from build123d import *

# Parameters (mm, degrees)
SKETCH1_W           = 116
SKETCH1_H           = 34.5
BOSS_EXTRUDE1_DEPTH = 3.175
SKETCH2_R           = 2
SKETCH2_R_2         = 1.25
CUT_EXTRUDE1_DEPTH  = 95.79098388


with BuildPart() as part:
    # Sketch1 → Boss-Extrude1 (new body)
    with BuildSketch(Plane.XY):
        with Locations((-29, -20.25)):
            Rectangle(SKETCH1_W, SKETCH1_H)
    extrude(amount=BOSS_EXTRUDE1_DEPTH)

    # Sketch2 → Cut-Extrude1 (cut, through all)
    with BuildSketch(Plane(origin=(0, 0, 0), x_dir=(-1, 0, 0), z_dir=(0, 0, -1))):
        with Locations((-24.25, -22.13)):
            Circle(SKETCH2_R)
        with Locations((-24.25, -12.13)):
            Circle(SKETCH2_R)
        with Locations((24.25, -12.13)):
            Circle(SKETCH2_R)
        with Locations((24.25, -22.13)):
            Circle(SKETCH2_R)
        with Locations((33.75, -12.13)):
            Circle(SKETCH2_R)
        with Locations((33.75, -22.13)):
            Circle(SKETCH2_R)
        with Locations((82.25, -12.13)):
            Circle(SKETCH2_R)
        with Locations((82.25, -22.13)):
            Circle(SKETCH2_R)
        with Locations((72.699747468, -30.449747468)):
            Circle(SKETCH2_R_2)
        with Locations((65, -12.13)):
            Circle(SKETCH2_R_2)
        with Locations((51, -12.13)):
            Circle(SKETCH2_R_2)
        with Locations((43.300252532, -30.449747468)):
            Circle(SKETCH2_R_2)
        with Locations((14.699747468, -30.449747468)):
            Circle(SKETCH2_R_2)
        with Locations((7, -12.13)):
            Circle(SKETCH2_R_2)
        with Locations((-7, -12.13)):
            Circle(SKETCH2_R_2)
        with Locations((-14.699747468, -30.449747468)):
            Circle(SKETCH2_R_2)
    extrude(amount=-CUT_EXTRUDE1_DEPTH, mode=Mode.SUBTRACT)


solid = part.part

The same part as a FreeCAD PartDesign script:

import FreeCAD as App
import Part
import Sketcher
Q = App.Units.Quantity

doc = App.newDocument("Part")
body = doc.addObject("PartDesign::Body", "Body")

sketch1 = body.newObject("Sketcher::SketchObject", "Sketch")
sketch1.AttachmentSupport = (doc.getObject("XY_Plane"), [""])
sketch1.MapMode = "FlatFace"
sketch1.addGeometry([
    Part.LineSegment(App.Vector(-87, -3, 0), App.Vector(-87, -37.5, 0)),
    Part.LineSegment(App.Vector(-87, -37.5, 0), App.Vector(29, -37.5, 0)),
    Part.LineSegment(App.Vector(29, -37.5, 0), App.Vector(29, -3, 0)),
    Part.LineSegment(App.Vector(29, -3, 0), App.Vector(-87, -3, 0)),
], False)
sketch1.addConstraint([
    Sketcher.Constraint("Coincident", 0, 2, 1, 1),
    Sketcher.Constraint("Coincident", 1, 2, 2, 1),
    Sketcher.Constraint("Coincident", 2, 2, 3, 1),
    Sketcher.Constraint("Coincident", 3, 2, 0, 1),
    Sketcher.Constraint("Vertical", 0),
    Sketcher.Constraint("Horizontal", 1),
    Sketcher.Constraint("Vertical", 2),
    Sketcher.Constraint("Horizontal", 3),
    Sketcher.Constraint("DistanceX", 1, 1, 1, 2, Q("116 mm")),
    Sketcher.Constraint("DistanceY", 0, 2, 0, 1, Q("34.5 mm")),
    Sketcher.Constraint("DistanceX", 0, 2, -1, 1, Q("87 mm")),
    Sketcher.Constraint("DistanceY", 2, 2, -1, 1, Q("3 mm")),
])
pad1 = body.newObject("PartDesign::Pad", "Pad")
pad1.Profile = sketch1
pad1.Length = 3.175

sketch2 = body.newObject("Sketcher::SketchObject", "Sketch001")
sketch2.AttachmentSupport = (doc.getObject("XY_Plane"), [""])
sketch2.MapMode = "FlatFace"
sketch2.addGeometry([
    Part.Circle(App.Vector(24.25, -22.13, 0), App.Vector(0, 0, 1), 2),
    Part.Circle(App.Vector(24.25, -12.13, 0), App.Vector(0, 0, 1), 2),
    Part.Circle(App.Vector(-24.25, -12.13, 0), App.Vector(0, 0, 1), 2),
    Part.Circle(App.Vector(-24.25, -22.13, 0), App.Vector(0, 0, 1), 2),
    Part.Circle(App.Vector(-33.75, -12.13, 0), App.Vector(0, 0, 1), 2),
    Part.Circle(App.Vector(-33.75, -22.13, 0), App.Vector(0, 0, 1), 2),
    Part.Circle(App.Vector(-82.25, -12.13, 0), App.Vector(0, 0, 1), 2),
    Part.Circle(App.Vector(-82.25, -22.13, 0), App.Vector(0, 0, 1), 2),
    Part.Circle(App.Vector(-72.699747, -30.449747, 0), App.Vector(0, 0, 1), 1.25),
    Part.Circle(App.Vector(-65, -12.13, 0), App.Vector(0, 0, 1), 1.25),
    Part.Circle(App.Vector(-51, -12.13, 0), App.Vector(0, 0, 1), 1.25),
    Part.Circle(App.Vector(-43.300253, -30.449747, 0), App.Vector(0, 0, 1), 1.25),
    Part.Circle(App.Vector(-14.699747, -30.449747, 0), App.Vector(0, 0, 1), 1.25),
    Part.Circle(App.Vector(-7, -12.13, 0), App.Vector(0, 0, 1), 1.25),
    Part.Circle(App.Vector(7, -12.13, 0), App.Vector(0, 0, 1), 1.25),
    Part.Circle(App.Vector(14.699747, -30.449747, 0), App.Vector(0, 0, 1), 1.25),
], False)
sketch2.addConstraint([
    Sketcher.Constraint("Equal", 0, 1),
    Sketcher.Constraint("Equal", 1, 2),
    Sketcher.Constraint("Equal", 2, 3),
    Sketcher.Constraint("Equal", 3, 4),
    Sketcher.Constraint("Equal", 4, 5),
    Sketcher.Constraint("Equal", 5, 6),
    Sketcher.Constraint("Equal", 6, 7),
    Sketcher.Constraint("Equal", 8, 9),
    Sketcher.Constraint("Equal", 9, 10),
    Sketcher.Constraint("Equal", 10, 11),
    Sketcher.Constraint("Equal", 11, 12),
    Sketcher.Constraint("Equal", 12, 13),
    Sketcher.Constraint("Equal", 13, 14),
    Sketcher.Constraint("Equal", 14, 15),
    Sketcher.Constraint("Symmetric", 1, 3, 2, 3, -2),
    Sketcher.Constraint("Symmetric", 0, 3, 3, 3, -2),
    Sketcher.Constraint("Symmetric", 13, 3, 14, 3, -2),
    Sketcher.Constraint("Symmetric", 12, 3, 15, 3, -2),
    Sketcher.Constraint("Horizontal", 2, 3, 4, 3),
    Sketcher.Constraint("Horizontal", 3, 3, 5, 3),
    Sketcher.Constraint("Horizontal", 4, 3, 6, 3),
    Sketcher.Constraint("Horizontal", 5, 3, 7, 3),
    Sketcher.Constraint("Horizontal", 6, 3, 9, 3),
    Sketcher.Constraint("Horizontal", 9, 3, 10, 3),
    Sketcher.Constraint("Horizontal", 8, 3, 11, 3),
    Sketcher.Constraint("Horizontal", 11, 3, 12, 3),
    Sketcher.Constraint("Horizontal", 10, 3, 13, 3),
    Sketcher.Constraint("Vertical", 0, 3, 1, 3),
    Sketcher.Constraint("Vertical", 4, 3, 5, 3),
    Sketcher.Constraint("Vertical", 6, 3, 7, 3),
    Sketcher.Constraint("Diameter", 0, Q("4 mm")),
    Sketcher.Constraint("Diameter", 8, Q("2.5 mm")),
    Sketcher.Constraint("DistanceX", 9, 3, -1, 1, Q("65 mm")),
    Sketcher.Constraint("DistanceX", 10, 3, -1, 1, Q("51 mm")),
    Sketcher.Constraint("DistanceX", 13, 3, -1, 1, Q("7 mm")),
    Sketcher.Constraint("DistanceY", 0, 3, 1, 3, Q("10 mm")),
    Sketcher.Constraint("DistanceX", 4, 3, 1, 3, Q("58 mm")),
    Sketcher.Constraint("DistanceX", 6, 3, 2, 3, Q("58 mm")),
    Sketcher.Constraint("DistanceX", 2, 3, 1, 3, Q("48.5 mm")),
    Sketcher.Constraint("DistanceY", 0, 3, -1, 1, Q("22.13 mm")),
    Sketcher.Constraint("DistanceX", 8, 3, -1, 1, Q("72.699747 mm")),
    Sketcher.Constraint("DistanceY", 8, 3, -1, 1, Q("30.449747 mm")),
    Sketcher.Constraint("DistanceX", 11, 3, -1, 1, Q("43.300253 mm")),
    Sketcher.Constraint("DistanceX", 12, 3, -1, 1, Q("14.699747 mm")),
])
pocket1 = body.newObject("PartDesign::Pocket", "Pocket")
pocket1.Profile = sketch2
pocket1.Type = "ThroughAll"
pocket1.Reversed = True

doc.recompute()
